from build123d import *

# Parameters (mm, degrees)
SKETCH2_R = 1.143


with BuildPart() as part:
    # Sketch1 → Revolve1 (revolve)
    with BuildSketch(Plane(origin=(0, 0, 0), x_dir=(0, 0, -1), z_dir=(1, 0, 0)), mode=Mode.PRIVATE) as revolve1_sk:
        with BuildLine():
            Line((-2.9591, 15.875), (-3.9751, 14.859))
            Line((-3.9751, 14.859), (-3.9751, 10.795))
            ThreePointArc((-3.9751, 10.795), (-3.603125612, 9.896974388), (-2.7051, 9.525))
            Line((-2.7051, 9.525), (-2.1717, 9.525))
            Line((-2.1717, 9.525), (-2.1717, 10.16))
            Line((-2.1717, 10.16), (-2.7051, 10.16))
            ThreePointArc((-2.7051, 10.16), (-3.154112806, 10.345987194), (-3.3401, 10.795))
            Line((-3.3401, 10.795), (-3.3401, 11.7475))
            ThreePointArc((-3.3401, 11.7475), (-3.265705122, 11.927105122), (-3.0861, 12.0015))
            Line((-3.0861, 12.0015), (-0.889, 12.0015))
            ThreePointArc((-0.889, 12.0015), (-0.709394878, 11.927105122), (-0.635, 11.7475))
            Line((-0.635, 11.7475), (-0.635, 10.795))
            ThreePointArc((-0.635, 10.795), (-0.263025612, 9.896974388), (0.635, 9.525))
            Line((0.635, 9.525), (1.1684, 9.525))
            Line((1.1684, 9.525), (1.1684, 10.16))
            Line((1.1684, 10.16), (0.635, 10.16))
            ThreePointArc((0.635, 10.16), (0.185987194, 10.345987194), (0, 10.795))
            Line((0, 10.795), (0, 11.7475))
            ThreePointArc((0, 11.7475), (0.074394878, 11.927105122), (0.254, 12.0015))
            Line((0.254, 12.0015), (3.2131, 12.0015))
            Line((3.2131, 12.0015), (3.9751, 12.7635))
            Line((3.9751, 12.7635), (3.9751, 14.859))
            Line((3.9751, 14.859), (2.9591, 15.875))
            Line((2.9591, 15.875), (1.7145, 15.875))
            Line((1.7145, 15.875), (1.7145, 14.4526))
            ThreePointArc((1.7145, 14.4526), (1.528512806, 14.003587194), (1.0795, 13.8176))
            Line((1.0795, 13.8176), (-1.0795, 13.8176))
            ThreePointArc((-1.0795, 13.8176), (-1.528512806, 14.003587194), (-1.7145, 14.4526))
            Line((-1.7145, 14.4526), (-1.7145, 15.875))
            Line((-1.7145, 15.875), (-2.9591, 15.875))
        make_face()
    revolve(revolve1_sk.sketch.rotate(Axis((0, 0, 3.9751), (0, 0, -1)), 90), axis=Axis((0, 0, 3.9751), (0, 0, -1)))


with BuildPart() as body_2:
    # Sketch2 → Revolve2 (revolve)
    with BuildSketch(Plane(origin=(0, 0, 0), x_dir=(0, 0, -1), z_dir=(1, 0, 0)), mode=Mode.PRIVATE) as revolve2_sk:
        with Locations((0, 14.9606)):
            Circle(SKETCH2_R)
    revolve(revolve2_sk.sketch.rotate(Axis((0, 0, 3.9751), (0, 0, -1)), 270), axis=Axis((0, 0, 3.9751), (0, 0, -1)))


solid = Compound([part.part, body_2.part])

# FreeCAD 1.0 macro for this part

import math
import FreeCAD as App
import Part
import Sketcher
Q = App.Units.Quantity

doc = App.newDocument("Part")
body = doc.addObject("PartDesign::Body", "Body")

# Sketch on YZ plane
sketch1 = body.newObject("Sketcher::SketchObject", "Sketch")
sketch1.AttachmentSupport = (doc.getObject("YZ_Plane"), [""])
sketch1.MapMode = "FlatFace"
sketch1.addGeometry([
    Part.LineSegment(App.Vector(15.88, 2.96, 0), App.Vector(14.86, 3.98, 0)),  # 0
    Part.LineSegment(App.Vector(14.86, 3.98, 0), App.Vector(10.79, 3.98, 0)),  # 1
    Part.ArcOfCircle(Part.Circle(App.Vector(10.79, 2.71, 0), App.Vector(0, 0, 1), 1.27), math.radians(90), math.radians(180)),  # 2
    Part.LineSegment(App.Vector(9.53, 2.71, 0), App.Vector(9.53, 2.17, 0)),  # 3
    Part.LineSegment(App.Vector(9.53, 2.17, 0), App.Vector(10.16, 2.17, 0)),  # 4
    Part.LineSegment(App.Vector(10.16, 2.17, 0), App.Vector(10.16, 2.71, 0)),  # 5
    Part.ArcOfCircle(Part.Circle(App.Vector(10.79, 2.71, 0), App.Vector(0, 0, 1), 0.64), math.radians(90), math.radians(180)),  # 6
    Part.LineSegment(App.Vector(10.79, 3.34, 0), App.Vector(11.75, 3.34, 0)),  # 7
    Part.ArcOfCircle(Part.Circle(App.Vector(11.75, 3.09, 0), App.Vector(0, 0, 1), 0.25), math.radians(0), math.radians(90)),  # 8
    Part.LineSegment(App.Vector(12, 3.09, 0), App.Vector(12, 0.89, 0)),  # 9
    Part.ArcOfCircle(Part.Circle(App.Vector(11.75, 0.89, 0), App.Vector(0, 0, 1), 0.25), math.radians(-90), math.radians(0)),  # 10
    Part.LineSegment(App.Vector(11.75, 0.64, 0), App.Vector(10.79, 0.64, 0)),  # 11
    Part.ArcOfCircle(Part.Circle(App.Vector(10.79, -0.64, 0), App.Vector(0, 0, 1), 1.27), math.radians(90), math.radians(180)),  # 12
    Part.LineSegment(App.Vector(9.53, -0.64, 0), App.Vector(9.53, -1.17, 0)),  # 13
    Part.LineSegment(App.Vector(9.53, -1.17, 0), App.Vector(10.16, -1.17, 0)),  # 14
    Part.LineSegment(App.Vector(10.16, -1.17, 0), App.Vector(10.16, -0.64, 0)),  # 15
    Part.ArcOfCircle(Part.Circle(App.Vector(10.79, -0.64, 0), App.Vector(0, 0, 1), 0.64), math.radians(90), math.radians(180)),  # 16
    Part.LineSegment(App.Vector(10.79, 0, 0), App.Vector(11.75, 0, 0)),  # 17
    Part.ArcOfCircle(Part.Circle(App.Vector(11.75, -0.25, 0), App.Vector(0, 0, 1), 0.25), math.radians(0), math.radians(90)),  # 18
    Part.LineSegment(App.Vector(12, -0.25, 0), App.Vector(12, -3.21, 0)),  # 19
    Part.LineSegment(App.Vector(12, -3.21, 0), App.Vector(12.76, -3.98, 0)),  # 20
    Part.LineSegment(App.Vector(12.76, -3.98, 0), App.Vector(14.86, -3.98, 0)),  # 21
    Part.LineSegment(App.Vector(14.86, -3.98, 0), App.Vector(15.88, -2.96, 0)),  # 22
    Part.LineSegment(App.Vector(15.88, -2.96, 0), App.Vector(15.88, -1.71, 0)),  # 23
    Part.LineSegment(App.Vector(15.88, -1.71, 0), App.Vector(14.45, -1.71, 0)),  # 24
    Part.ArcOfCircle(Part.Circle(App.Vector(14.45, -1.08, 0), App.Vector(0, 0, 1), 0.64), math.radians(180), math.radians(270)),  # 25
    Part.LineSegment(App.Vector(13.82, -1.08, 0), App.Vector(13.82, 1.08, 0)),  # 26
    Part.ArcOfCircle(Part.Circle(App.Vector(14.45, 1.08, 0), App.Vector(0, 0, 1), 0.64), math.radians(90), math.radians(180)),  # 27
    Part.LineSegment(App.Vector(14.45, 1.71, 0), App.Vector(15.88, 1.71, 0)),  # 28
    Part.LineSegment(App.Vector(15.88, 1.71, 0), App.Vector(15.88, 2.96, 0)),  # 29
], False)
sketch1.addConstraint([
    Sketcher.Constraint("Coincident", 0, 2, 1, 1),
    Sketcher.Constraint("Tangent", 1, 2, 2, 1),
    Sketcher.Constraint("Tangent", 2, 2, 3, 1),
    Sketcher.Constraint("Coincident", 3, 2, 4, 1),
    Sketcher.Constraint("Coincident", 4, 2, 5, 1),
    Sketcher.Constraint("Tangent", 5, 2, 6, 2),
    Sketcher.Constraint("Tangent", 6, 1, 7, 1),
    Sketcher.Constraint("Tangent", 7, 2, 8, 2),
    Sketcher.Constraint("Tangent", 8, 1, 9, 1),
    Sketcher.Constraint("Tangent", 9, 2, 10, 2),
    Sketcher.Constraint("Tangent", 10, 1, 11, 1),
    Sketcher.Constraint("Tangent", 11, 2, 12, 1),
    Sketcher.Constraint("Tangent", 12, 2, 13, 1),
    Sketcher.Constraint("Coincident", 13, 2, 14, 1),
    Sketcher.Constraint("Coincident", 14, 2, 15, 1),
    Sketcher.Constraint("Tangent", 15, 2, 16, 2),
    Sketcher.Constraint("Tangent", 16, 1, 17, 1),
    Sketcher.Constraint("Tangent", 17, 2, 18, 2),
    Sketcher.Constraint("Tangent", 18, 1, 19, 1),
    Sketcher.Constraint("Coincident", 19, 2, 20, 1),
    Sketcher.Constraint("Coincident", 20, 2, 21, 1),
    Sketcher.Constraint("Coincident", 21, 2, 22, 1),
    Sketcher.Constraint("Coincident", 22, 2, 23, 1),
    Sketcher.Constraint("Coincident", 23, 2, 24, 1),
    Sketcher.Constraint("Tangent", 24, 2, 25, 2),
    Sketcher.Constraint("Tangent", 25, 1, 26, 1),
    Sketcher.Constraint("Tangent", 26, 2, 27, 2),
    Sketcher.Constraint("Tangent", 27, 1, 28, 1),
    Sketcher.Constraint("Coincident", 28, 2, 29, 1),
    Sketcher.Constraint("Coincident", 29, 2, 0, 1),
    Sketcher.Constraint("Horizontal", 1),
    Sketcher.Constraint("Vertical", 3),
    Sketcher.Constraint("Horizontal", 4),
    Sketcher.Constraint("Vertical", 5),
    Sketcher.Constraint("Horizontal", 7),
    Sketcher.Constraint("Vertical", 9),
    Sketcher.Constraint("Horizontal", 11),
    Sketcher.Constraint("Vertical", 13),
    Sketcher.Constraint("Horizontal", 14),
    Sketcher.Constraint("Vertical", 15),
    Sketcher.Constraint("Horizontal", 17),
    Sketcher.Constraint("Vertical", 19),
    Sketcher.Constraint("Horizontal", 21),
    Sketcher.Constraint("Vertical", 23),
    Sketcher.Constraint("Horizontal", 24),
    Sketcher.Constraint("Vertical", 26),
    Sketcher.Constraint("Horizontal", 28),
    Sketcher.Constraint("Vertical", 29),
    Sketcher.Constraint("Coincident", 6, 3, 2, 3),
    Sketcher.Constraint("Coincident", 16, 3, 12, 3),
    Sketcher.Constraint("Equal", 8, 10),
    Sketcher.Constraint("Equal", 2, 12),
    Sketcher.Constraint("Equal", 6, 16),
    Sketcher.Constraint("Equal", 10, 18),
    Sketcher.Constraint("Equal", 16, 25),
    Sketcher.Constraint("Equal", 25, 27),
    Sketcher.Constraint("Symmetric", 0, 2, 21, 2, -1),
    Sketcher.Constraint("Symmetric", 23, 2, 28, 2, -1),
    Sketcher.Constraint("PointOnObject", 16, 1, -1),
    Sketcher.Constraint("Parallel", 0, 20),
    Sketcher.Constraint("Perpendicular", 20, 22),
    Sketcher.Constraint("Vertical", 6, 3, 12, 3),
    Sketcher.Constraint("Vertical", 10, 3, 18, 3),
    Sketcher.Constraint("Equal", 5, 13),
    Sketcher.Constraint("Equal", 23, 29),
    Sketcher.Constraint("Radius", 2, Q("0.05 in")),
    Sketcher.Constraint("Radius", 8, Q("0.01 in")),
    Sketcher.Constraint("Radius", 6, Q("0.025 in")),
    Sketcher.Constraint("DistanceX", 1, 2, 1, 1, Q("0.16 in")),
    Sketcher.Constraint("DistanceX", -1, 1, 4, 2, Q("0.4 in")),
    Sketcher.Constraint("DistanceX", 24, 2, 24, 1, Q("0.056 in")),
    Sketcher.Constraint("DistanceY", 3, 2, 3, 1, Q("0.021 in")),
    Sketcher.Constraint("DistanceY", 23, 1, 23, 2, Q("0.049 in")),
    Sketcher.Constraint("DistanceY", 26, 1, 26, 2, Q("0.085 in")),
    Sketcher.Constraint("DistanceX", 19, 2, 20, 2, Q("0.03 in")),
    Sketcher.Constraint("DistanceX", 21, 2, 22, 2, Q("0.04 in")),
    Sketcher.Constraint("DistanceX", 7, 1, 7, 2, Q("0.0375 in")),
])
revolution = body.newObject("PartDesign::Revolution", "Revolution")
revolution.Profile = sketch1
revolution.ReferenceAxis = (sketch1, ["V_Axis"])
revolution.Angle = 360
body2 = doc.addObject("PartDesign::Body", "Body001")

# Sketch on YZ plane
sketch2 = body2.newObject("Sketcher::SketchObject", "Sketch001")
sketch2.AttachmentSupport = (doc.getObject("YZ_Plane001"), [""])
sketch2.MapMode = "FlatFace"
sketch2.addGeometry(Part.Circle(App.Vector(15, 0, 0), App.Vector(0, 0, 1), 1.1), False)
sketch2.addConstraint([
    Sketcher.Constraint("PointOnObject", 0, 3, -1),
    Sketcher.Constraint("Diameter", 0, Q("0.09 in")),
    Sketcher.Constraint("DistanceX", -1, 1, 0, 3, Q("0.589 in")),
])
revolution2 = body2.newObject("PartDesign::Revolution", "Revolution001")
revolution2.Profile = sketch2
revolution2.ReferenceAxis = (sketch2, ["V_Axis"])
revolution2.Angle = 360

doc.recompute()
